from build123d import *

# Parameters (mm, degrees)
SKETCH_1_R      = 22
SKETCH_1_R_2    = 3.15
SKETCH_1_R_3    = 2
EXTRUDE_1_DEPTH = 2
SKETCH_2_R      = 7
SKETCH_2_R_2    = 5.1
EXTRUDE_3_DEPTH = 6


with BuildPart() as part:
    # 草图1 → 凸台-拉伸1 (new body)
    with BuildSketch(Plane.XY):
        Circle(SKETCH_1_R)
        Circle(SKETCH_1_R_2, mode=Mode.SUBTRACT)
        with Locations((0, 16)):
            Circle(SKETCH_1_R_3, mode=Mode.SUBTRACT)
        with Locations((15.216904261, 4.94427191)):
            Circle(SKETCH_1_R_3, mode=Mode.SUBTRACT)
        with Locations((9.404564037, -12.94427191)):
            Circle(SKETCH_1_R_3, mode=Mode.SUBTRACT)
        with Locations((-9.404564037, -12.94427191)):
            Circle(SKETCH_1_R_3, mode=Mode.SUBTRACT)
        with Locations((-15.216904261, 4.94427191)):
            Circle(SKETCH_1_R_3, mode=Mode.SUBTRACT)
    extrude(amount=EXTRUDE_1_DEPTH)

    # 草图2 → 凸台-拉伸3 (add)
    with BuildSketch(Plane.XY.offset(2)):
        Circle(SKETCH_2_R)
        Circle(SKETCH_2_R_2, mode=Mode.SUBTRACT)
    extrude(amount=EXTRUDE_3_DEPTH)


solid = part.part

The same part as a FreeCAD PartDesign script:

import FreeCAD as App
import Part
import Sketcher
from FreeCAD import Vector

doc = App.newDocument("Part")
params = doc.addObject("Spreadsheet::Sheet", "Params")
for row, (alias, value) in enumerate([
    ("sketch1_diameter", "44 mm"),
    ("sketch1_diameter2", "4 mm"),
    ("sketch1_diameter3", "6.3 mm"),
    ("pad1_length", "2 mm"),
    ("sketch2_diameter", "14 mm"),
    ("sketch2_diameter2", "10.2 mm"),
    ("pad2_length", "6 mm"),
], start=1):
    params.set(f"A{row}", alias)
    params.set(f"B{row}", "=" + value)
    params.setAlias(f"B{row}", alias)

body = doc.addObject("PartDesign::Body", "Body")

# Sketch on XY plane
sketch1 = body.newObject("Sketcher::SketchObject", "Sketch")
sketch1.AttachmentSupport = (doc.getObject("XY_Plane"), [""])
sketch1.MapMode = "FlatFace"
sketch1.addGeometry([
    Part.Circle(Vector(0, 0, 0), Vector(0, 0, 1), 22),  # 0
    Part.Circle(Vector(-9.4, -12.9, 0), Vector(0, 0, 1), 2),  # 1
    Part.Circle(Vector(0, 0, 0), Vector(0, 0, 1), 3.1),  # 2
    Part.Circle(Vector(9.4, -12.9, 0), Vector(0, 0, 1), 2),  # 3
    Part.Circle(Vector(-15.2, 4.9, 0), Vector(0, 0, 1), 2),  # 4
    Part.Circle(Vector(0, 16, 0), Vector(0, 0, 1), 2),  # 5
    Part.Circle(Vector(15.2, 4.9, 0), Vector(0, 0, 1), 2),  # 6
], False)
sketch1.addConstraint([
    Sketcher.Constraint("Coincident", 0, 3, -1, 1),
    Sketcher.Constraint("Coincident", 2, 3, -1, 1),
    Sketcher.Constraint("Equal", 1, 3),
    Sketcher.Constraint("Equal", 3, 4),
    Sketcher.Constraint("Equal", 4, 5),
    Sketcher.Constraint("Equal", 5, 6),
    Sketcher.Constraint("Symmetric", 1, 3, 3, 3, -2),
    Sketcher.Constraint("Symmetric", 4, 3, 6, 3, -2),
    Sketcher.Constraint("PointOnObject", 5, 3, -2),
    Sketcher.Constraint("Diameter", 0, 44.0),
    Sketcher.Constraint("Diameter", 1, 4.0),
    Sketcher.Constraint("Diameter", 2, 6.3),
    Sketcher.Constraint("DistanceY", -1, 1, 5, 3, 16.0),
    Sketcher.Constraint("DistanceY", 1, 3, -1, 1, 12.944272),
    Sketcher.Constraint("DistanceY", -1, 1, 4, 3, 4.944272),
    Sketcher.Constraint("DistanceX", 1, 3, 3, 3, 18.809128),
    Sketcher.Constraint("DistanceX", 4, 3, 1, 3, 5.81234),
])
sketch1.setExpression("Constraints[9]", "Params.sketch1_diameter")
sketch1.setExpression("Constraints[10]", "Params.sketch1_diameter2")
sketch1.setExpression("Constraints[11]", "Params.sketch1_diameter3")
pad1 = body.newObject("PartDesign::Pad", "Pad")
pad1.Profile = sketch1
pad1.setExpression("Length", "Params.pad1_length")

# Sketch on XY plane
sketch2 = body.newObject("Sketcher::SketchObject", "Sketch001")
sketch2.AttachmentSupport = (doc.getObject("XY_Plane"), [""])
sketch2.MapMode = "FlatFace"
sketch2.AttachmentOffset = App.Placement(Vector(0, 0, 2), App.Rotation())
sketch2.addGeometry([
    Part.Circle(Vector(0, 0, 0), Vector(0, 0, 1), 7),
    Part.Circle(Vector(0, 0, 0), Vector(0, 0, 1), 5),
], False)
sketch2.addConstraint([
    Sketcher.Constraint("Coincident", 0, 3, -1, 1),
    Sketcher.Constraint("Coincident", 1, 3, -1, 1),
    Sketcher.Constraint("Diameter", 0, 14.0),
    Sketcher.Constraint("Diameter", 1, 10.2),
])
sketch2.setExpression("Constraints[2]", "Params.sketch2_diameter")
sketch2.setExpression("Constraints[3]", "Params.sketch2_diameter2")
pad2 = body.newObject("PartDesign::Pad", "Pad001")
pad2.Profile = sketch2
pad2.setExpression("Length", "Params.pad2_length")

doc.recompute()
